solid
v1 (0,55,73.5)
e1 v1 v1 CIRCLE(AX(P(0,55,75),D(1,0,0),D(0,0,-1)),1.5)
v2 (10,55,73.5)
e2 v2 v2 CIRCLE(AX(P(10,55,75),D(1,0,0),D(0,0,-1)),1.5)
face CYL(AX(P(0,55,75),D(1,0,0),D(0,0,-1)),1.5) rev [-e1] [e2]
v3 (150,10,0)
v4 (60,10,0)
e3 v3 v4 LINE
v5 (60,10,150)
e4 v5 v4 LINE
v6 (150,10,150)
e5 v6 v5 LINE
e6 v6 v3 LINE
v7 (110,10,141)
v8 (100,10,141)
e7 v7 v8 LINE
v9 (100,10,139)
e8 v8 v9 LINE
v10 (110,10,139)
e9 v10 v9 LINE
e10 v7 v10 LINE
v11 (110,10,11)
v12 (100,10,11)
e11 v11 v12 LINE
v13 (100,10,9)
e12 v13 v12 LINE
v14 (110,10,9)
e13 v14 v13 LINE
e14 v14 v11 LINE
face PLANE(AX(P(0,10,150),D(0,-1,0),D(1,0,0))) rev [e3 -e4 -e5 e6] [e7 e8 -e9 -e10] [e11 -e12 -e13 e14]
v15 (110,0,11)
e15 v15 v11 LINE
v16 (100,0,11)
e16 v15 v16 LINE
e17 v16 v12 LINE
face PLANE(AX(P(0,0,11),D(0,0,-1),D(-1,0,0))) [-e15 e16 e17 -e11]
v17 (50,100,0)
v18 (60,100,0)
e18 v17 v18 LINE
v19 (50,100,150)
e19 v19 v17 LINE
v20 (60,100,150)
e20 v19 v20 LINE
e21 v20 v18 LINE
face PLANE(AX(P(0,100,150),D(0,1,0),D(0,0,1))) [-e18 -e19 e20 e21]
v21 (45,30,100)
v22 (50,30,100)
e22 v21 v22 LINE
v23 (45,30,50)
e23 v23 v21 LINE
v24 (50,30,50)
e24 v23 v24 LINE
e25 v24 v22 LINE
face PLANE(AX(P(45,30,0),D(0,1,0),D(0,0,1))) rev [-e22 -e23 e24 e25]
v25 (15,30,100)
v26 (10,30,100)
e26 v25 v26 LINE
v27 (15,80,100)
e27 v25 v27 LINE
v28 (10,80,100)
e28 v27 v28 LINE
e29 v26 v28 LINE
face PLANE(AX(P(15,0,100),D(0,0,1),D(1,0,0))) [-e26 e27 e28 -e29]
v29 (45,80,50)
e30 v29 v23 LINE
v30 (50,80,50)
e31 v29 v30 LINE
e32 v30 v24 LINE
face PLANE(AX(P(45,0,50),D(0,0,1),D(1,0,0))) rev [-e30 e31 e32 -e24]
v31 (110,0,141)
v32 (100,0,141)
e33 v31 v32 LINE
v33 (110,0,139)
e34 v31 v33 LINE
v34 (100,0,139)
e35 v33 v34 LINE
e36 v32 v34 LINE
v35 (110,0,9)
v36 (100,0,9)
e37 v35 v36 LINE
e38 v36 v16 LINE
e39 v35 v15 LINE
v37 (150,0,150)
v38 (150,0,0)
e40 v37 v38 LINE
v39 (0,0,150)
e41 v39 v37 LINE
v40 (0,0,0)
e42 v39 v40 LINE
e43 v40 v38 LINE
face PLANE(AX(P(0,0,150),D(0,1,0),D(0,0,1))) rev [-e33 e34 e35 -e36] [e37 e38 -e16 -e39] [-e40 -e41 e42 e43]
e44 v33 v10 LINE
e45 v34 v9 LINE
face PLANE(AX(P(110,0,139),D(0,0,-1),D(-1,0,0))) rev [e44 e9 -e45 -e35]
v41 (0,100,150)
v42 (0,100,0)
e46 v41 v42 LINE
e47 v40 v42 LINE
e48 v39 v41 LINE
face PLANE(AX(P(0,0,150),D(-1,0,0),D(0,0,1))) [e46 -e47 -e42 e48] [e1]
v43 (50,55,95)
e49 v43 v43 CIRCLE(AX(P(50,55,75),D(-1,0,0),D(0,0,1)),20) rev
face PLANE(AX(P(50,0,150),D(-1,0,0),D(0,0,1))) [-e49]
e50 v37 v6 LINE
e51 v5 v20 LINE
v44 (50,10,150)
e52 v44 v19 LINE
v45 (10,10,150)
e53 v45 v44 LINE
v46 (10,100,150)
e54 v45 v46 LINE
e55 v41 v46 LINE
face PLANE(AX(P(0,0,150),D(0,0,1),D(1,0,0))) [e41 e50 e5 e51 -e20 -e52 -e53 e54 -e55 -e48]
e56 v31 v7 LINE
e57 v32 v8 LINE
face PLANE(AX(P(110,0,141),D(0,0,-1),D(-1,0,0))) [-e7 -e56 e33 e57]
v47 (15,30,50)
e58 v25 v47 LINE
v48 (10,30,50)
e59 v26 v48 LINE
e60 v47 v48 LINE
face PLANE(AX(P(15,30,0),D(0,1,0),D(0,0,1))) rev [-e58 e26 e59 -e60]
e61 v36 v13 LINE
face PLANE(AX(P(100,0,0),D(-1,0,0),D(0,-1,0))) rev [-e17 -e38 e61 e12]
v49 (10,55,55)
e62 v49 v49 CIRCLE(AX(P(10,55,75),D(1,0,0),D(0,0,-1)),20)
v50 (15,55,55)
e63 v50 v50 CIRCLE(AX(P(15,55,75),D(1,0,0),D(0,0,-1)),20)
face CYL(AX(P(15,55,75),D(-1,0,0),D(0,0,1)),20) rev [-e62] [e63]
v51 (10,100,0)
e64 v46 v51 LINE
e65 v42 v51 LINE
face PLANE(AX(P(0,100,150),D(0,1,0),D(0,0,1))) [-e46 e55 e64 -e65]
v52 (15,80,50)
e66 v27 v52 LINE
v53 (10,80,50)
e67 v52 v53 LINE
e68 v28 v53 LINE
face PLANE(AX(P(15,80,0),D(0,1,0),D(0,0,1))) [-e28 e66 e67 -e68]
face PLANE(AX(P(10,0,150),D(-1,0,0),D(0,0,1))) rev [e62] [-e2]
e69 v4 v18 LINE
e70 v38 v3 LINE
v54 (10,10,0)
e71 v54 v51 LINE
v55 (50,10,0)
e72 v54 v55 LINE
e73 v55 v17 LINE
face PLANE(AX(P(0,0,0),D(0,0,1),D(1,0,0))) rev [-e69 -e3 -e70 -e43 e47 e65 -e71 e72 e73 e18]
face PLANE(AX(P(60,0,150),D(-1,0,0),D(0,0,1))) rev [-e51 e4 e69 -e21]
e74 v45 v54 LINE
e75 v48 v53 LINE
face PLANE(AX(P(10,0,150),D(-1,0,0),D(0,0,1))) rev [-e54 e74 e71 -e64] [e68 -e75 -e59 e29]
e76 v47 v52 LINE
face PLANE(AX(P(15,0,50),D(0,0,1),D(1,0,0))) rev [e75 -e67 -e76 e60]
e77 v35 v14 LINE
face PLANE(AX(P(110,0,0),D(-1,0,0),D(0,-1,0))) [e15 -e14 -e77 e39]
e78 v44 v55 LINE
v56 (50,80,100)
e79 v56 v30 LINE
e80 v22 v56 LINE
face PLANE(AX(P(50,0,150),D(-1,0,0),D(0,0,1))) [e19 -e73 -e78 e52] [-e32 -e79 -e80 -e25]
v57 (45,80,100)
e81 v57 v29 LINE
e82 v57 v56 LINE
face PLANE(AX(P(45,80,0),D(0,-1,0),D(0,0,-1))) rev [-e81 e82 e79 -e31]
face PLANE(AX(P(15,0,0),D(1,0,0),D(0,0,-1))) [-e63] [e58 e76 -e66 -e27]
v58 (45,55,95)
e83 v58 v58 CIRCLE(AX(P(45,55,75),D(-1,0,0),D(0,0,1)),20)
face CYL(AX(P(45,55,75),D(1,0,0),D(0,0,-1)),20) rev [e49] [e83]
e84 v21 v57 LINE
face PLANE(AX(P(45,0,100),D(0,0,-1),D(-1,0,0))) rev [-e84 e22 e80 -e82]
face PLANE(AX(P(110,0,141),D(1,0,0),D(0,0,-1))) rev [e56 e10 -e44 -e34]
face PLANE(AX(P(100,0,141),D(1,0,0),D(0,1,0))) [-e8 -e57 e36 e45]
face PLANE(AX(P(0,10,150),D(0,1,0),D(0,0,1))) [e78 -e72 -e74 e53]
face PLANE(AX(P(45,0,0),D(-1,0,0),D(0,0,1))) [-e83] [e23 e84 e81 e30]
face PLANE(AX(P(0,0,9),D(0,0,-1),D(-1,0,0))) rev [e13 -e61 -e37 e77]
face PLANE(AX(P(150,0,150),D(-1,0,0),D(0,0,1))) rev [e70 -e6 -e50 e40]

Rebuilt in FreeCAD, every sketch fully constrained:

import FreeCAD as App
import Part
import Sketcher

V = App.Vector
Q = App.Units.Quantity


def add_polygon(sketch, points):
    """Adds a closed chain of lines whose ends are joined by coincident constraints."""
    first, n = sketch.GeometryCount, len(points)
    for a, b in zip(points, points[1:] + points[:1]):
        sketch.addGeometry(Part.LineSegment(App.Vector(*a, 0), App.Vector(*b, 0)), False)
    for i in range(n):
        sketch.addConstraint(Sketcher.Constraint("Coincident", first + i, 2, first + (i + 1) % n, 1))

doc = App.newDocument("Part")
body = doc.addObject("PartDesign::Body", "Body")

# Sketch on XY plane
sketch1 = doc.addObject("Sketcher::SketchObject", "Sketch")
body.addObject(sketch1)
sketch1.AttachmentSupport = (doc.XY_Plane, [""])
sketch1.MapMode = "FlatFace"
add_polygon(sketch1, [(50, 100), (50, 10), (10, 10), (10, 100), (0, 100), (0, 0), (150, 0), (150, 10), (60, 10), (60, 100)])  # lines 0-9
sketch1.addConstraint([
    Sketcher.Constraint("Vertical", 0),
    Sketcher.Constraint("Horizontal", 1),
    Sketcher.Constraint("Vertical", 2),
    Sketcher.Constraint("Horizontal", 3),
    Sketcher.Constraint("Vertical", 4),
    Sketcher.Constraint("Horizontal", 5),
    Sketcher.Constraint("Vertical", 6),
    Sketcher.Constraint("Horizontal", 7),
    Sketcher.Constraint("Vertical", 8),
    Sketcher.Constraint("Horizontal", 9),
    Sketcher.Constraint("Coincident", 4, 2, -1, 1),
    Sketcher.Constraint("Horizontal", 1, 2, 6, 2),
    Sketcher.Constraint("Horizontal", 3, 2, 8, 2),
    Sketcher.Constraint("Equal", 3, 9),
    Sketcher.Constraint("Equal", 7, 0),
    Sketcher.Constraint("Equal", 9, 6),
    Sketcher.Constraint("DistanceX", 1, 2, 1, 1, Q("40 mm")),
    Sketcher.Constraint("DistanceX", 3, 2, 3, 1, Q("10 mm")),
    Sketcher.Constraint("DistanceX", 5, 1, 5, 2, Q("150 mm")),
])
pad1 = doc.addObject("PartDesign::Pad", "Pad")
body.addObject(pad1)
pad1.Profile = sketch1
pad1.Length = 150

# Sketch on XZ plane
sketch2 = doc.addObject("Sketcher::SketchObject", "Sketch001")
body.addObject(sketch2)
sketch2.AttachmentSupport = (doc.XZ_Plane, [""])
sketch2.MapMode = "FlatFace"
sketch2.AttachmentOffset = App.Placement(V(0, 0, -10), App.Rotation())
add_polygon(sketch2, [(100, 9), (100, 11), (110, 11), (110, 9)])  # lines 0-3
add_polygon(sketch2, [(100, 139), (100, 141), (110, 141), (110, 139)])  # lines 4-7
sketch2.addConstraint([
    Sketcher.Constraint("Vertical", 0),
    Sketcher.Constraint("Horizontal", 1),
    Sketcher.Constraint("Vertical", 2),
    Sketcher.Constraint("Horizontal", 3),
    Sketcher.Constraint("Vertical", 4),
    Sketcher.Constraint("Horizontal", 5),
    Sketcher.Constraint("Vertical", 6),
    Sketcher.Constraint("Horizontal", 7),
    Sketcher.Constraint("Vertical", 3, 2, 4, 2),
    Sketcher.Constraint("Vertical", 2, 2, 5, 2),
    Sketcher.Constraint("Equal", 2, 4),
    Sketcher.Constraint("DistanceX", 1, 1, 1, 2, Q("10 mm")),
    Sketcher.Constraint("DistanceY", 0, 1, 0, 2, Q("2 mm")),
    Sketcher.Constraint("DistanceX", -1, 1, 0, 2, Q("100 mm")),
    Sketcher.Constraint("DistanceY", -1, 1, 0, 2, Q("11 mm")),
    Sketcher.Constraint("DistanceY", -1, 1, 4, 2, Q("141 mm")),
])
pocket1 = doc.addObject("PartDesign::Pocket", "Pocket")
body.addObject(pocket1)
pocket1.Profile = sketch2
pocket1.Length = 10
pocket1.Reversed = True

# Sketch on YZ plane
sketch3 = doc.addObject("Sketcher::SketchObject", "Sketch002")
body.addObject(sketch3)
sketch3.AttachmentSupport = (doc.YZ_Plane, [""])
sketch3.MapMode = "FlatFace"
sketch3.AttachmentOffset = App.Placement(V(0, 0, 10), App.Rotation())
add_polygon(sketch3, [(80, 100), (30, 100), (30, 50), (80, 50)])  # lines 0-3
sketch3.addGeometry(Part.Circle(V(55, 75, 0), V(0, 0, 1), 20), False)  # 4
sketch3.addConstraint([
    Sketcher.Constraint("Horizontal", 0),
    Sketcher.Constraint("Vertical", 1),
    Sketcher.Constraint("Horizontal", 2),
    Sketcher.Constraint("Vertical", 3),
    Sketcher.Constraint("Equal", 2, 1),
    Sketcher.Constraint("Diameter", 4, Q("40 mm")),
    Sketcher.Constraint("DistanceX", 0, 2, 0, 1, Q("50 mm")),
    Sketcher.Constraint("DistanceX", -1, 1, 4, 3, Q("55 mm")),
    Sketcher.Constraint("DistanceY", -1, 1, 4, 3, Q("75 mm")),
    Sketcher.Constraint("DistanceX", -1, 1, 0, 2, Q("30 mm")),
    Sketcher.Constraint("DistanceY", -1, 1, 0, 2, Q("100 mm")),
])
pad2 = doc.addObject("PartDesign::Pad", "Pad001")
body.addObject(pad2)
pad2.Profile = sketch3
pad2.Length = 5

# Sketch on YZ plane
sketch4 = doc.addObject("Sketcher::SketchObject", "Sketch003")
body.addObject(sketch4)
sketch4.AttachmentSupport = (doc.YZ_Plane, [""])
sketch4.MapMode = "FlatFace"
sketch4.AttachmentOffset = App.Placement(V(0, 0, 45), App.Rotation())
add_polygon(sketch4, [(80, 50), (30, 50), (30, 100), (80, 100)])  # lines 0-3
sketch4.addGeometry(Part.Circle(V(55, 75, 0), V(0, 0, 1), 20), False)  # 4
sketch4.addConstraint([
    Sketcher.Constraint("Horizontal", 0),
    Sketcher.Constraint("Vertical", 1),
    Sketcher.Constraint("Horizontal", 2),
    Sketcher.Constraint("Vertical", 3),
    Sketcher.Constraint("Equal", 2, 1),
    Sketcher.Constraint("Diameter", 4, Q("40 mm")),
    Sketcher.Constraint("DistanceX", 0, 2, 0, 1, Q("50 mm")),
    Sketcher.Constraint("DistanceX", -1, 1, 4, 3, Q("55 mm")),
    Sketcher.Constraint("DistanceY", -1, 1, 4, 3, Q("75 mm")),
    Sketcher.Constraint("DistanceX", -1, 1, 0, 2, Q("30 mm")),
    Sketcher.Constraint("DistanceY", -1, 1, 0, 2, Q("50 mm")),
])
pad3 = doc.addObject("PartDesign::Pad", "Pad002")
body.addObject(pad3)
pad3.Profile = sketch4
pad3.Length = 5

# Sketch on YZ plane
sketch5 = doc.addObject("Sketcher::SketchObject", "Sketch004")
body.addObject(sketch5)
sketch5.AttachmentSupport = (doc.YZ_Plane, [""])
sketch5.MapMode = "FlatFace"
sketch5.AttachmentOffset = App.Placement(V(0, 0, 10), App.Rotation())
sketch5.addGeometry(Part.Circle(V(55, 75, 0), V(0, 0, 1), 1.5), False)
sketch5.addConstraint([
    Sketcher.Constraint("Diameter", 0, Q("3 mm")),
    Sketcher.Constraint("DistanceX", -1, 1, 0, 3, Q("55 mm")),
    Sketcher.Constraint("DistanceY", -1, 1, 0, 3, Q("75 mm")),
])
pocket2 = doc.addObject("PartDesign::Pocket", "Pocket001")
body.addObject(pocket2)
pocket2.Profile = sketch5
pocket2.Type = "ThroughAll"

doc.recompute()
